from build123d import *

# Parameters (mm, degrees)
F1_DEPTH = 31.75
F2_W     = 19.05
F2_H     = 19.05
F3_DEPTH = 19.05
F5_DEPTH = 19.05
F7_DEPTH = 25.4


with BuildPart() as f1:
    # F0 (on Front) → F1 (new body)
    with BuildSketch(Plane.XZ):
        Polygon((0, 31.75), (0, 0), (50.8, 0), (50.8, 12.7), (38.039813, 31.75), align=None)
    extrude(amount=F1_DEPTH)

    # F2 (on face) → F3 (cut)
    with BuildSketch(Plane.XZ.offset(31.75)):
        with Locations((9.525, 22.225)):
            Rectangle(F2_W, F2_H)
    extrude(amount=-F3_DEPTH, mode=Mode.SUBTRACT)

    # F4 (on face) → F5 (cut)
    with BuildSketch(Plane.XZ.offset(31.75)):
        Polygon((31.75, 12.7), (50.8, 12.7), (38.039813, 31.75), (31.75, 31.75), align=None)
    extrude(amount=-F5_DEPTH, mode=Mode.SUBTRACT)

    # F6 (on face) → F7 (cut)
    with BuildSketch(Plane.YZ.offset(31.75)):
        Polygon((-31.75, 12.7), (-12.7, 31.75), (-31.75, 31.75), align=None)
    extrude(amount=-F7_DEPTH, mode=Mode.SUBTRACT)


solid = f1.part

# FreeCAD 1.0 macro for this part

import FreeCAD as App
import Part
import Sketcher

V = App.Vector
Q = App.Units.Quantity

doc = App.newDocument("Part")
body = doc.addObject("PartDesign::Body", "Body")

# Sketch on XZ plane
sketch1 = body.newObject("Sketcher::SketchObject", "Sketch")
sketch1.AttachmentSupport = (doc.getObject("XZ_Plane"), [""])
sketch1.MapMode = "FlatFace"
sketch1.addGeometry([
    Part.LineSegment(V(0, 32, 0), V(0, 0, 0)),  # 0
    Part.LineSegment(V(0, 0, 0), V(51, 0, 0)),  # 1
    Part.LineSegment(V(51, 0, 0), V(51, 13, 0)),  # 2
    Part.LineSegment(V(51, 13, 0), V(38, 32, 0)),  # 3
    Part.LineSegment(V(38, 32, 0), V(0, 32, 0)),  # 4
], False)
sketch1.addConstraint([
    Sketcher.Constraint("Coincident", 0, 2, 1, 1),
    Sketcher.Constraint("Coincident", 1, 2, 2, 1),
    Sketcher.Constraint("Coincident", 2, 2, 3, 1),
    Sketcher.Constraint("Coincident", 3, 2, 4, 1),
    Sketcher.Constraint("Coincident", 4, 2, 0, 1),
    Sketcher.Constraint("Vertical", 0),
    Sketcher.Constraint("Horizontal", 1),
    Sketcher.Constraint("Vertical", 2),
    Sketcher.Constraint("Horizontal", 4),
    Sketcher.Constraint("Coincident", 0, 2, -1, 1),
    Sketcher.Constraint("DistanceX", 1, 1, 1, 2, Q("2 in")),
    Sketcher.Constraint("DistanceY", 2, 1, 2, 2, Q("0.5 in")),
    Sketcher.Constraint("DistanceY", 0, 2, 0, 1, Q("1.25 in")),
    Sketcher.Constraint("Distance", 3, Q("22.928691 mm")),
])
pad1 = body.newObject("PartDesign::Pad", "Pad")
pad1.Profile = sketch1
pad1.Length = Q("1.25 in")

# Sketch on XZ plane
sketch2 = body.newObject("Sketcher::SketchObject", "Sketch001")
sketch2.AttachmentSupport = (doc.getObject("XZ_Plane"), [""])
sketch2.MapMode = "FlatFace"
sketch2.AttachmentOffset = App.Placement(V(0, 0, 1.25 * 25.4), App.Rotation())
sketch2.addGeometry([
    Part.LineSegment(V(0, 32, 0), V(0, 13, 0)),
    Part.LineSegment(V(0, 13, 0), V(19, 13, 0)),
    Part.LineSegment(V(19, 13, 0), V(19, 32, 0)),
    Part.LineSegment(V(19, 32, 0), V(0, 32, 0)),
], False)
sketch2.addConstraint([
    Sketcher.Constraint("Coincident", 0, 2, 1, 1),
    Sketcher.Constraint("Coincident", 1, 2, 2, 1),
    Sketcher.Constraint("Coincident", 2, 2, 3, 1),
    Sketcher.Constraint("Coincident", 3, 2, 0, 1),
    Sketcher.Constraint("Vertical", 0),
    Sketcher.Constraint("Horizontal", 1),
    Sketcher.Constraint("Vertical", 2),
    Sketcher.Constraint("Horizontal", 3),
    Sketcher.Constraint("PointOnObject", 0, 2, -2),
    Sketcher.Constraint("Equal", 3, 0),
    Sketcher.Constraint("DistanceX", 1, 1, 1, 2, Q("0.75 in")),
    Sketcher.Constraint("DistanceY", -1, 1, 0, 2, Q("0.5 in")),
])
pocket1 = body.newObject("PartDesign::Pocket", "Pocket")
pocket1.Profile = sketch2
pocket1.Length = Q("0.75 in")

# Sketch on XZ plane
sketch3 = body.newObject("Sketcher::SketchObject", "Sketch002")
sketch3.AttachmentSupport = (doc.getObject("XZ_Plane"), [""])
sketch3.MapMode = "FlatFace"
sketch3.AttachmentOffset = App.Placement(V(0, 0, 1.25 * 25.4), App.Rotation())
sketch3.addGeometry([
    Part.LineSegment(V(32, 13, 0), V(51, 13, 0)),
    Part.LineSegment(V(51, 13, 0), V(38, 32, 0)),
    Part.LineSegment(V(38, 32, 0), V(32, 32, 0)),
    Part.LineSegment(V(32, 32, 0), V(32, 13, 0)),
], False)
sketch3.addConstraint([
    Sketcher.Constraint("Coincident", 0, 2, 1, 1),
    Sketcher.Constraint("Coincident", 1, 2, 2, 1),
    Sketcher.Constraint("Coincident", 2, 2, 3, 1),
    Sketcher.Constraint("Coincident", 3, 2, 0, 1),
    Sketcher.Constraint("Horizontal", 0),
    Sketcher.Constraint("Horizontal", 2),
    Sketcher.Constraint("Vertical", 3),
    Sketcher.Constraint("Equal", 0, 3),
    Sketcher.Constraint("DistanceX", -1, 1, 0, 2, Q("2 in")),
    Sketcher.Constraint("DistanceX", 0, 1, 0, 2, Q("0.75 in")),
    Sketcher.Constraint("DistanceY", -1, 1, 0, 2, Q("0.5 in")),
    Sketcher.Constraint("Distance", 1, Q("22.928691 mm")),
])
pocket2 = body.newObject("PartDesign::Pocket", "Pocket001")
pocket2.Profile = sketch3
pocket2.Length = Q("0.75 in")

# Sketch on YZ plane
sketch4 = body.newObject("Sketcher::SketchObject", "Sketch003")
sketch4.AttachmentSupport = (doc.getObject("YZ_Plane"), [""])
sketch4.MapMode = "FlatFace"
sketch4.AttachmentOffset = App.Placement(V(0, 0, 1.25 * 25.4), App.Rotation())
sketch4.addGeometry([
    Part.LineSegment(V(-32, 13, 0), V(-13, 32, 0)),
    Part.LineSegment(V(-13, 32, 0), V(-32, 32, 0)),
    Part.LineSegment(V(-32, 32, 0), V(-32, 13, 0)),
], False)
sketch4.addConstraint([
    Sketcher.Constraint("Coincident", 0, 2, 1, 1),
    Sketcher.Constraint("Coincident", 1, 2, 2, 1),
    Sketcher.Constraint("Coincident", 2, 2, 0, 1),
    Sketcher.Constraint("Horizontal", 1),
    Sketcher.Constraint("Vertical", 2),
    Sketcher.Constraint("Equal", 1, 2),
    Sketcher.Constraint("DistanceX", 1, 2, 1, 1, Q("0.75 in")),
    Sketcher.Constraint("DistanceX", 0, 2, -1, 1, Q("0.5 in")),
    Sketcher.Constraint("DistanceY", -1, 1, 2, 2, Q("0.5 in")),
])
pocket3 = body.newObject("PartDesign::Pocket", "Pocket002")
pocket3.Profile = sketch4
pocket3.Length = Q("1 in")

doc.recompute()
